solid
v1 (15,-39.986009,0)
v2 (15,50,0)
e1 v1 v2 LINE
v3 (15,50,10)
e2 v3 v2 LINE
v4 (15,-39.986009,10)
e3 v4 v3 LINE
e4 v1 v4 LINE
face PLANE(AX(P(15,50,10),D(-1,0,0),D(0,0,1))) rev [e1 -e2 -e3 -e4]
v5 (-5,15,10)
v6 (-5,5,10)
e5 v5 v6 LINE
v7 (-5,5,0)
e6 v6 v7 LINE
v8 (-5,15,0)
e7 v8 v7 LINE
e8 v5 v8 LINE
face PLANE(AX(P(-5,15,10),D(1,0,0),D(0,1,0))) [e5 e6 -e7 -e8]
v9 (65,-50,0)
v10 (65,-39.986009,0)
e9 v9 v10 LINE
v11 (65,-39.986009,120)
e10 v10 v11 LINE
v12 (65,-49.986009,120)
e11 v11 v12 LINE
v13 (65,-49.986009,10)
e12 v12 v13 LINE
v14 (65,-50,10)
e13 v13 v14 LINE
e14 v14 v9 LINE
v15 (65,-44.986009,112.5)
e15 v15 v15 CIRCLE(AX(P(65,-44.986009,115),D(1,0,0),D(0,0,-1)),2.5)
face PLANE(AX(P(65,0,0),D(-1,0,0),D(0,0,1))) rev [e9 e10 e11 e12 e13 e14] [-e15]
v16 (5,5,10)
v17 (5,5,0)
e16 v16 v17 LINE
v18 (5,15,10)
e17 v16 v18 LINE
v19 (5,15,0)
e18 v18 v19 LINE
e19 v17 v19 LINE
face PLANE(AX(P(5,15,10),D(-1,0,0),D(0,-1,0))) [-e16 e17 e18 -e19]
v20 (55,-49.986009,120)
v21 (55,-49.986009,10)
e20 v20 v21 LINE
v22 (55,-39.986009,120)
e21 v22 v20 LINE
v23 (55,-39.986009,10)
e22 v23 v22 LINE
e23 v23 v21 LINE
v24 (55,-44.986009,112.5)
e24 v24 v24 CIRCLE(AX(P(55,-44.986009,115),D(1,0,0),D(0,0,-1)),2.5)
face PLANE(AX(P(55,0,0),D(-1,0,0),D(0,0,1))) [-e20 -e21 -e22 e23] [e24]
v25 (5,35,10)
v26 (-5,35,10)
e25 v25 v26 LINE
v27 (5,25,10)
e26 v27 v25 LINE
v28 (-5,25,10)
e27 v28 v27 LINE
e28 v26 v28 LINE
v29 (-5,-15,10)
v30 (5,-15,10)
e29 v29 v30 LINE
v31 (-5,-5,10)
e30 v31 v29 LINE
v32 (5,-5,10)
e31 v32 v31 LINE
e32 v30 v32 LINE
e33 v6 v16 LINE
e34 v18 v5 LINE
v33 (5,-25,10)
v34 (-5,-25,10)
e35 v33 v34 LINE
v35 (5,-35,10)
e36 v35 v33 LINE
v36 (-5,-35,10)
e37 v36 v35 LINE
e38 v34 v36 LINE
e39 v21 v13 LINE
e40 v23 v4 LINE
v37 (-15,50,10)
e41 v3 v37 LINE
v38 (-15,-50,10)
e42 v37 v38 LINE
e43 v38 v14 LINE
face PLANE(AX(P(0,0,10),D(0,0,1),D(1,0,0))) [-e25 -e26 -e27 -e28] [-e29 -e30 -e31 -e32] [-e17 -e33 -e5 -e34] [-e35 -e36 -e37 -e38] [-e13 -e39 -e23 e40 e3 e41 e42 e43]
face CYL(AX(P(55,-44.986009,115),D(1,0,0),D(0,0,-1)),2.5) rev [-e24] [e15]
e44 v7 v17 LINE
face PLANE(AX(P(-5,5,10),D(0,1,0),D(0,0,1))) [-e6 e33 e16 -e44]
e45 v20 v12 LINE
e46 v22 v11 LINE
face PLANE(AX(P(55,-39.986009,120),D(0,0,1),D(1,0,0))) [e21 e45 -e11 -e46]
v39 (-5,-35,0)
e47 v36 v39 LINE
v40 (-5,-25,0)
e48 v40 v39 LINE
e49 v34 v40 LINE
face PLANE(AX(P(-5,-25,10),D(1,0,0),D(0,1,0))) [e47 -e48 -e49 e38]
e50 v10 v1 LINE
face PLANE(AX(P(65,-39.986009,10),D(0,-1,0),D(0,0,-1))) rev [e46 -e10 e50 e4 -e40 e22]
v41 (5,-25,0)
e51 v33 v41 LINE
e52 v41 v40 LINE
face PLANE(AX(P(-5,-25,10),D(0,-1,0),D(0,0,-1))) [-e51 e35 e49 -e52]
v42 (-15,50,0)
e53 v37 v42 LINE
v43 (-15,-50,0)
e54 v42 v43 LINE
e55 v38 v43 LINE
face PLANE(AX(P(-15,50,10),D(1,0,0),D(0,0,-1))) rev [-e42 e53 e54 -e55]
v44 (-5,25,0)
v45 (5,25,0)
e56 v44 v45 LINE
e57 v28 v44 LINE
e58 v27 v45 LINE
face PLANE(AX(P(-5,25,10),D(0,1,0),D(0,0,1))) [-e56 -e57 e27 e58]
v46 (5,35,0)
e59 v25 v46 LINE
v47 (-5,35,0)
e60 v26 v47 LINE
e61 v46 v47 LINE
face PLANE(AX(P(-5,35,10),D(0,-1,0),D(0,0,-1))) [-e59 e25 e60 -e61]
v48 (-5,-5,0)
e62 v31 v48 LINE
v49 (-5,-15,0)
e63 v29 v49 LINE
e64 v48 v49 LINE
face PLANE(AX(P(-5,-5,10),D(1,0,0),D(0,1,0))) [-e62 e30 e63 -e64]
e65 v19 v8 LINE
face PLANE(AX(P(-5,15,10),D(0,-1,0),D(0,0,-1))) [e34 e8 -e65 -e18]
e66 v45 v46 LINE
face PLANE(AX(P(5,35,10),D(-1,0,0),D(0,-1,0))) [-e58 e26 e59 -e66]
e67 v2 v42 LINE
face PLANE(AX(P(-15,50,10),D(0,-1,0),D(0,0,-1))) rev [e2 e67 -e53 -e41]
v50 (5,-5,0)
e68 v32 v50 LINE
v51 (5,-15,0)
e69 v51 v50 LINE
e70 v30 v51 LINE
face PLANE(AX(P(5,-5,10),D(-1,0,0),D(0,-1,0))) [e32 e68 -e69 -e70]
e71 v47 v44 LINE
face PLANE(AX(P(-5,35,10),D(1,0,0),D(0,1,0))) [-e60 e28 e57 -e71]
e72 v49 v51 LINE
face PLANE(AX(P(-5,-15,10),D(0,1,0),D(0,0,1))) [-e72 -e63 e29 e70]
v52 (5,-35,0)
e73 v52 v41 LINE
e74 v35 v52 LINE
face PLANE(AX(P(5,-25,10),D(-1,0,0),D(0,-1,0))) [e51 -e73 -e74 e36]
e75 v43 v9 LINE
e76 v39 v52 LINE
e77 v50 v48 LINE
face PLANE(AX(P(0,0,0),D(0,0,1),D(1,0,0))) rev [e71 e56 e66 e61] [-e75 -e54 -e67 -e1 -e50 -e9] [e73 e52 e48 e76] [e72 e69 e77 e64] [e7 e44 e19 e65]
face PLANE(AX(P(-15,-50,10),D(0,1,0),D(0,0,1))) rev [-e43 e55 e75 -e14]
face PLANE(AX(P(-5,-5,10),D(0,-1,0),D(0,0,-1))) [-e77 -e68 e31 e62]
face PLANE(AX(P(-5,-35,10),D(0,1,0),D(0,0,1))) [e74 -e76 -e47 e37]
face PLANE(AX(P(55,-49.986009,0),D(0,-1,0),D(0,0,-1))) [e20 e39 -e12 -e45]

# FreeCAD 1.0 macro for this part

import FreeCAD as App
import Part
import Sketcher

V = App.Vector
Q = App.Units.Quantity


def add_polygon(sketch, points):
    """Adds a closed chain of lines whose ends are joined by coincident constraints."""
    first, n = sketch.GeometryCount, len(points)
    for a, b in zip(points, points[1:] + points[:1]):
        sketch.addGeometry(Part.LineSegment(App.Vector(*a, 0), App.Vector(*b, 0)), False)
    for i in range(n):
        sketch.addConstraint(Sketcher.Constraint("Coincident", first + i, 2, first + (i + 1) % n, 1))

doc = App.newDocument("Part")
body = doc.addObject("PartDesign::Body", "Body")

# Sketch on XY plane
sketch1 = body.newObject("Sketcher::SketchObject", "Sketch")
sketch1.AttachmentSupport = (doc.getObject("XY_Plane"), [""])
sketch1.MapMode = "FlatFace"
add_polygon(sketch1, [(-15, 50), (-15, -50), (15, -50), (15, 50)])  # lines 0-3
add_polygon(sketch1, [(5, -35), (-5, -35), (-5, -25), (5, -25)])  # lines 4-7
add_polygon(sketch1, [(5, -15), (-5, -15), (-5, -5), (5, -5)])  # lines 8-11
add_polygon(sketch1, [(5, 5), (-5, 5), (-5, 15), (5, 15)])  # lines 12-15
add_polygon(sketch1, [(5, 25), (-5, 25), (-5, 35), (5, 35)])  # lines 16-19
sketch1.addConstraint([
    Sketcher.Constraint("Vertical", 0),
    Sketcher.Constraint("Horizontal", 1),
    Sketcher.Constraint("Vertical", 2),
    Sketcher.Constraint("Horizontal", 3),
    Sketcher.Constraint("Horizontal", 4),
    Sketcher.Constraint("Vertical", 5),
    Sketcher.Constraint("Horizontal", 6),
    Sketcher.Constraint("Vertical", 7),
    Sketcher.Constraint("Horizontal", 8),
    Sketcher.Constraint("Vertical", 9),
    Sketcher.Constraint("Horizontal", 10),
    Sketcher.Constraint("Vertical", 11),
    Sketcher.Constraint("Horizontal", 12),
    Sketcher.Constraint("Vertical", 13),
    Sketcher.Constraint("Horizontal", 14),
    Sketcher.Constraint("Vertical", 15),
    Sketcher.Constraint("Horizontal", 16),
    Sketcher.Constraint("Vertical", 17),
    Sketcher.Constraint("Horizontal", 18),
    Sketcher.Constraint("Vertical", 19),
    Sketcher.Constraint("Symmetric", 0, 2, 2, 2, -1, 1),
    Sketcher.Constraint("Symmetric", 10, 2, 12, 2, -1, 1),
    Sketcher.Constraint("Symmetric", 8, 2, 14, 2, -1, 1),
    Sketcher.Constraint("Symmetric", 6, 2, 16, 2, -1, 1),
    Sketcher.Constraint("Symmetric", 4, 2, 18, 2, -1, 1),
    Sketcher.Constraint("Vertical", 5, 2, 8, 2),
    Sketcher.Constraint("Vertical", 7, 2, 10, 2),
    Sketcher.Constraint("Vertical", 9, 2, 12, 2),
    Sketcher.Constraint("Equal", 18, 5),
    Sketcher.Constraint("Equal", 7, 9),
    Sketcher.Constraint("DistanceX", 1, 1, 1, 2, Q("30 mm")),
    Sketcher.Constraint("DistanceX", 4, 2, 4, 1, Q("10 mm")),
    Sketcher.Constraint("DistanceY", 0, 2, 0, 1, Q("100 mm")),
    Sketcher.Constraint("DistanceY", 4, 2, -1, 1, Q("35 mm")),
    Sketcher.Constraint("DistanceY", 8, 2, -1, 1, Q("15 mm")),
])
pad1 = body.newObject("PartDesign::Pad", "Pad")
pad1.Profile = sketch1
pad1.Length = 10

# Sketch on YZ plane
sketch2 = body.newObject("Sketcher::SketchObject", "Sketch001")
sketch2.AttachmentSupport = (doc.getObject("YZ_Plane"), [""])
sketch2.MapMode = "FlatFace"
sketch2.AttachmentOffset = App.Placement(V(0, 0, 15), App.Rotation())
add_polygon(sketch2, [(-40, 10), (-50, 10), (-50, 0), (-40, 0)])  # lines 0-3
sketch2.addConstraint([
    Sketcher.Constraint("Horizontal", 0),
    Sketcher.Constraint("Vertical", 1),
    Sketcher.Constraint("Horizontal", 2),
    Sketcher.Constraint("Vertical", 3),
    Sketcher.Constraint("PointOnObject", 1, 2, -1),
    Sketcher.Constraint("DistanceY", 1, 2, 1, 1, Q("10 mm")),
    Sketcher.Constraint("DistanceX", 0, 2, -1, 1, Q("50 mm")),
    Sketcher.Constraint("DistanceX", 0, 2, 0, 1, Q("10.013991 mm")),
])
pad2 = body.newObject("PartDesign::Pad", "Pad001")
pad2.Profile = sketch2
pad2.Length = 50

# Sketch on YZ plane
sketch3 = body.newObject("Sketcher::SketchObject", "Sketch002")
sketch3.AttachmentSupport = (doc.getObject("YZ_Plane"), [""])
sketch3.MapMode = "FlatFace"
sketch3.AttachmentOffset = App.Placement(V(0, 0, 65), App.Rotation())
add_polygon(sketch3, [(-40, 120), (-50, 120), (-50, 0), (-40, 0)])  # lines 0-3
sketch3.addGeometry(Part.Circle(V(-45, 115, 0), V(0, 0, 1), 2.5), False)  # 4
sketch3.addConstraint([
    Sketcher.Constraint("Horizontal", 0),
    Sketcher.Constraint("Vertical", 1),
    Sketcher.Constraint("Horizontal", 2),
    Sketcher.Constraint("Vertical", 3),
    Sketcher.Constraint("PointOnObject", 1, 2, -1),
    Sketcher.Constraint("Diameter", 4, Q("5 mm")),
    Sketcher.Constraint("DistanceX", 0, 2, 0, 1, Q("10 mm")),
    Sketcher.Constraint("DistanceY", 1, 2, 1, 1, Q("120 mm")),
    Sketcher.Constraint("DistanceY", -1, 1, 4, 3, Q("115 mm")),
    Sketcher.Constraint("DistanceX", 0, 2, 4, 3, Q("5 mm")),
    Sketcher.Constraint("DistanceX", 4, 3, -1, 1, Q("44.986009 mm")),
])
pad3 = body.newObject("PartDesign::Pad", "Pad002")
pad3.Profile = sketch3
pad3.Length = 10
pad3.Reversed = True

doc.recompute()
